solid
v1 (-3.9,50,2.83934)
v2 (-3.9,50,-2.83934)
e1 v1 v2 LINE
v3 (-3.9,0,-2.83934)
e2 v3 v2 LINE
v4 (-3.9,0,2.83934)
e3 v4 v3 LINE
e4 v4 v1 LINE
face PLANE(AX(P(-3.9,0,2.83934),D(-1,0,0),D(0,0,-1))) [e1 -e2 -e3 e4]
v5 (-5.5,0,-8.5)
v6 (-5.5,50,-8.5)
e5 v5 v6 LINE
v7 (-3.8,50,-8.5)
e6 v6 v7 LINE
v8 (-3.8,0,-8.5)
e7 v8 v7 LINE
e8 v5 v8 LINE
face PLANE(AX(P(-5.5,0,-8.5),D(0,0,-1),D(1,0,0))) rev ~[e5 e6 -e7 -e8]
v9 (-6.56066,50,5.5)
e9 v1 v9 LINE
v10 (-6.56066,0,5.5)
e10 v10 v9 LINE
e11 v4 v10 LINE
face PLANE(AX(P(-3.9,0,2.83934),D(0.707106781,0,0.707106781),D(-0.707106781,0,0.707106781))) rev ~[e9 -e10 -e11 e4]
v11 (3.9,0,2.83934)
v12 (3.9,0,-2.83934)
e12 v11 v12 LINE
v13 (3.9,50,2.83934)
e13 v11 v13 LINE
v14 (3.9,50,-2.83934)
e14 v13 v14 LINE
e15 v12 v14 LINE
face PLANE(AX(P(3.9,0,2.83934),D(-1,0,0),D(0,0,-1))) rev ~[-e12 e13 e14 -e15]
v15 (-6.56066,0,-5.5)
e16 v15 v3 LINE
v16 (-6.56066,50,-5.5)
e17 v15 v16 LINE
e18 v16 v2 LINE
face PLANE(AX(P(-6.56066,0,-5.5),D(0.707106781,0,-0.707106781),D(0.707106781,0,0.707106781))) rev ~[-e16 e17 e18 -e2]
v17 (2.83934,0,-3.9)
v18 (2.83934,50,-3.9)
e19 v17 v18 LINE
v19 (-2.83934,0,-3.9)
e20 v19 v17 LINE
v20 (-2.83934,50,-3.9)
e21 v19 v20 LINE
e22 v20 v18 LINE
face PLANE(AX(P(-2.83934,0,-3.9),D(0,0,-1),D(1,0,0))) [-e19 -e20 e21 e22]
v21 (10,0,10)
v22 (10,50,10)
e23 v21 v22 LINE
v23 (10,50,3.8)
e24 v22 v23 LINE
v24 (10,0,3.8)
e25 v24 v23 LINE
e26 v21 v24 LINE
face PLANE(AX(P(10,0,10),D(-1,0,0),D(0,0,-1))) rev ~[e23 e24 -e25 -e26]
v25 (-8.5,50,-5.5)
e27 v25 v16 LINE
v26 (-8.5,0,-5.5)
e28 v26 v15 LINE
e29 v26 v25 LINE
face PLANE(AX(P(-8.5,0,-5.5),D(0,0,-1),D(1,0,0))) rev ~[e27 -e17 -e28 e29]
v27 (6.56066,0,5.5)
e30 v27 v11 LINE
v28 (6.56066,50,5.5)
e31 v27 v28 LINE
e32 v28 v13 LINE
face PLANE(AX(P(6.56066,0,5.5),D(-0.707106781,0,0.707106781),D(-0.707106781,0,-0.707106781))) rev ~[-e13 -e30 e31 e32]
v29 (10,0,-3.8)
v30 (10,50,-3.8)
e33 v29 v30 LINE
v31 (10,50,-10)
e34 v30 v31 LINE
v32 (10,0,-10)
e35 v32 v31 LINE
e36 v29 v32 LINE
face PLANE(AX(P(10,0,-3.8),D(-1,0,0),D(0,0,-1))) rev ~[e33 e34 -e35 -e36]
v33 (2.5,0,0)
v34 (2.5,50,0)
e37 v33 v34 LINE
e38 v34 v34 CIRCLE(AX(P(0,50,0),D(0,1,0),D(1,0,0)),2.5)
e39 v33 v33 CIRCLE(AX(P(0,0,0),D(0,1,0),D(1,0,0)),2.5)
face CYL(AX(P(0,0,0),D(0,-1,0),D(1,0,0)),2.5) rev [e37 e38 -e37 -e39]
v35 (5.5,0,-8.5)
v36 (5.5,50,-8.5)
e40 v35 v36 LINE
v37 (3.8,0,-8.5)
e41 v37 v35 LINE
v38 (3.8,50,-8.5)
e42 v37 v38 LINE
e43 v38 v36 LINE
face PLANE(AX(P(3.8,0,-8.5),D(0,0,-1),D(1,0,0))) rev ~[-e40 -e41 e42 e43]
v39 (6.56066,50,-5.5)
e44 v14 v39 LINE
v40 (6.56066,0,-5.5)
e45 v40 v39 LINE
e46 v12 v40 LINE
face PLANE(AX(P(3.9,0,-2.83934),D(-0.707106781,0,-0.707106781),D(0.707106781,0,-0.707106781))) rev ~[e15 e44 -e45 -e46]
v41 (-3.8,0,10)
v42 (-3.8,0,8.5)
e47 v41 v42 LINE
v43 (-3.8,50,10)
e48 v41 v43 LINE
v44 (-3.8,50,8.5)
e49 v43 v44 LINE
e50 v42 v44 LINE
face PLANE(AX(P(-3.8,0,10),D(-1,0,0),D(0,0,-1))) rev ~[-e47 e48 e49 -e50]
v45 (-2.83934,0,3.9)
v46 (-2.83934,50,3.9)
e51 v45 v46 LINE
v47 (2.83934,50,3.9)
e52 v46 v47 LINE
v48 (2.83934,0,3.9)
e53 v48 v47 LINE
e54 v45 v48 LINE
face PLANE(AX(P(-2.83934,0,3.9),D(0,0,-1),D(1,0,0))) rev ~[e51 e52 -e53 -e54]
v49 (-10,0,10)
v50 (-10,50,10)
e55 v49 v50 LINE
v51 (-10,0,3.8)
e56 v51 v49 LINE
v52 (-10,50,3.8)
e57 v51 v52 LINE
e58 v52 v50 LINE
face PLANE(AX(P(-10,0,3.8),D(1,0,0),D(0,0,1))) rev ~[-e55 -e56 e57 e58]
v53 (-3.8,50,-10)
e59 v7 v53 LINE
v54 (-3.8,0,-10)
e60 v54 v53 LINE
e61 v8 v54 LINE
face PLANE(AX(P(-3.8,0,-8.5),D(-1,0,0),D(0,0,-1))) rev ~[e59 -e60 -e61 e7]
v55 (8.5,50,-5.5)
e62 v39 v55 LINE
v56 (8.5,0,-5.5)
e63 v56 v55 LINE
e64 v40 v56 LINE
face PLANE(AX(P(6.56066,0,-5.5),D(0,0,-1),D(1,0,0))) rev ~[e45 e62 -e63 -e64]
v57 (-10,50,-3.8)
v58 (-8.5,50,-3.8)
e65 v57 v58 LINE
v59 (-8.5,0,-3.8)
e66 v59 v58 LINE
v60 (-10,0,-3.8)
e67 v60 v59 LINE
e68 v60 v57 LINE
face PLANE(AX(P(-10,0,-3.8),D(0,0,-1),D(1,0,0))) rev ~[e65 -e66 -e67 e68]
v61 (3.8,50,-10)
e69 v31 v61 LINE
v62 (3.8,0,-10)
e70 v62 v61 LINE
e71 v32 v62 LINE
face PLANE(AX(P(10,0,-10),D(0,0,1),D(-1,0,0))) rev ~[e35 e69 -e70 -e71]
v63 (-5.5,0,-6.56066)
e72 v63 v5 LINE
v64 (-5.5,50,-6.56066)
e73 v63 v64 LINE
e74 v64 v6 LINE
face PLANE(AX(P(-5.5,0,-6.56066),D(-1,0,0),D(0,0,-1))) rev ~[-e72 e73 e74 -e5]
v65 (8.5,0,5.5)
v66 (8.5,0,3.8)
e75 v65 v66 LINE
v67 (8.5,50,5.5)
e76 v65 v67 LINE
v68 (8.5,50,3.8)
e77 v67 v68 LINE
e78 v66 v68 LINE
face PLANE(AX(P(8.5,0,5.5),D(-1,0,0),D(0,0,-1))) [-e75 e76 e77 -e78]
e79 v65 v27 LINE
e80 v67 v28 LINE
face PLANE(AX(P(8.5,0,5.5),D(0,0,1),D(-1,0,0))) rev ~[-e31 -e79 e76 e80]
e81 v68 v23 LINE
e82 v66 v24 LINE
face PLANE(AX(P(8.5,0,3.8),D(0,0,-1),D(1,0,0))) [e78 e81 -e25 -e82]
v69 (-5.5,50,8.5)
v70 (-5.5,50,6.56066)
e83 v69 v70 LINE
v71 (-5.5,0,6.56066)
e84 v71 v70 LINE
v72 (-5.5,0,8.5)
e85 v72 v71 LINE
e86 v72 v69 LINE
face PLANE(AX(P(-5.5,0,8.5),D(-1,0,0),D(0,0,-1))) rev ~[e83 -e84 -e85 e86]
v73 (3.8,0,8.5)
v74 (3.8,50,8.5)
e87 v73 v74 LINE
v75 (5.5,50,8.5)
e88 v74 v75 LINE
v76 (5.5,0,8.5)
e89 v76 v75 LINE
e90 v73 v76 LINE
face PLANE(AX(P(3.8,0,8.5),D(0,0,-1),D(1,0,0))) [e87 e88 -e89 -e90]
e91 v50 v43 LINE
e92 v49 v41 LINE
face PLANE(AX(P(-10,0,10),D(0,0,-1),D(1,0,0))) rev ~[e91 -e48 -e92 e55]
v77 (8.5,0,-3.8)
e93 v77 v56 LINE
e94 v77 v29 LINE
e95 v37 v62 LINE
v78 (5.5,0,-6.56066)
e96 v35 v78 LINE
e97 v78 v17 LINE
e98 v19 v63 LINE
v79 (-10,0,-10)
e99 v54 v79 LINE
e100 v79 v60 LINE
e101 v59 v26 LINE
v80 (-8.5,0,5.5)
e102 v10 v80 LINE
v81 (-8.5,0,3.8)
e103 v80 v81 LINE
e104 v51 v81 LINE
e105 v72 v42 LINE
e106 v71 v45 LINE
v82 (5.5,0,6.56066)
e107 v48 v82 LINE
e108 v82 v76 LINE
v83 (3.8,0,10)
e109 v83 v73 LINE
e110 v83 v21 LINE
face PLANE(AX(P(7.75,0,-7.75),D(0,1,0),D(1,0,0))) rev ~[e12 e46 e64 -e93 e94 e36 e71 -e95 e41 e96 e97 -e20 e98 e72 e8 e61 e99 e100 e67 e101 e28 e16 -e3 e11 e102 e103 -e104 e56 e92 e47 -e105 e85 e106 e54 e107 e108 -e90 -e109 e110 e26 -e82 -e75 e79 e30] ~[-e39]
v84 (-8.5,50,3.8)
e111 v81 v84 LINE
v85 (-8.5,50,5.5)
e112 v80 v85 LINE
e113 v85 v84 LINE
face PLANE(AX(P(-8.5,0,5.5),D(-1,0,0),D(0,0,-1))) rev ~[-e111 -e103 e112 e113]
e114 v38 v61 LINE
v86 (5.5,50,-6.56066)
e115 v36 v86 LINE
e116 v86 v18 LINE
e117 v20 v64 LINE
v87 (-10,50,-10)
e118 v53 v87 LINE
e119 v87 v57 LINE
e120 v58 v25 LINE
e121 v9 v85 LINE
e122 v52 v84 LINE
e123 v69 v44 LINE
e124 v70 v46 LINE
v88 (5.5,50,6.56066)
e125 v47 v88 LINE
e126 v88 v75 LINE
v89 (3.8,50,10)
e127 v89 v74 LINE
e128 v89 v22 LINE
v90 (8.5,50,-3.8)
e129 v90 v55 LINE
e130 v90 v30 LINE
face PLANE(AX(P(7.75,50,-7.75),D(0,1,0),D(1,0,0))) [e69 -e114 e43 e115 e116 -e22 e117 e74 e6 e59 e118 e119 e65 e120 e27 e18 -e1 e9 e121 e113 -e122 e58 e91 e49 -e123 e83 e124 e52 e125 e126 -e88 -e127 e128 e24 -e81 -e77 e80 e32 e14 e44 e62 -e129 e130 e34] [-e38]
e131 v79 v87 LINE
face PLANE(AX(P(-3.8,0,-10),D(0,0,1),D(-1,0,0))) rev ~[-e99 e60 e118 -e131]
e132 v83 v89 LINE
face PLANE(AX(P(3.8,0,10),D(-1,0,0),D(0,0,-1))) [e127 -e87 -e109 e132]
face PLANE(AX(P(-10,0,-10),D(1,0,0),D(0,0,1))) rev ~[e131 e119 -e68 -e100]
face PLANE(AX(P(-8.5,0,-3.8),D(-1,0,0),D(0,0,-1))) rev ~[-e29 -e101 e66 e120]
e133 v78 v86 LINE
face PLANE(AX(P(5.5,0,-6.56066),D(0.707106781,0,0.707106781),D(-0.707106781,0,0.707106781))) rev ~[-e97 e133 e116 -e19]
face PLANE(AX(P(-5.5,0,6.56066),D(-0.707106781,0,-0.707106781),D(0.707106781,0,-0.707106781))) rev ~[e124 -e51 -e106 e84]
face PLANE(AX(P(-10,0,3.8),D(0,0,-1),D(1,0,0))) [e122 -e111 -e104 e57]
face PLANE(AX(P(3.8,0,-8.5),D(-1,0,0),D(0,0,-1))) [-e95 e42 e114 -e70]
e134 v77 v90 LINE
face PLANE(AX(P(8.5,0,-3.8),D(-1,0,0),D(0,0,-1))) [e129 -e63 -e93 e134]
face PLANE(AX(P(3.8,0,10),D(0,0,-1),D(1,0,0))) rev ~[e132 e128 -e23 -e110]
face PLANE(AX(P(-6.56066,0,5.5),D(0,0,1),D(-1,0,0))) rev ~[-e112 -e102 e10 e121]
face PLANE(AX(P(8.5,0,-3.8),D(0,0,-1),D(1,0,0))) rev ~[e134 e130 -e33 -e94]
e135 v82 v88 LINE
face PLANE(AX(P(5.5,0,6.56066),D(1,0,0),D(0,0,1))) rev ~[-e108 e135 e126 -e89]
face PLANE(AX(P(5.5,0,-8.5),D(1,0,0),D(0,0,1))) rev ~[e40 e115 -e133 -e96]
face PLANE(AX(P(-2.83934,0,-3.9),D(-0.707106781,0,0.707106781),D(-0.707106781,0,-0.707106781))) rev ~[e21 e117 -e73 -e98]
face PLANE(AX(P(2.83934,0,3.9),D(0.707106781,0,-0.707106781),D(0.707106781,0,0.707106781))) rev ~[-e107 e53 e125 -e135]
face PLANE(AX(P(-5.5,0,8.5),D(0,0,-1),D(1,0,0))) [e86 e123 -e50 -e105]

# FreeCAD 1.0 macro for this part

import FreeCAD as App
import Part
import Sketcher

V = App.Vector
Q = App.Units.Quantity

doc = App.newDocument("Part")
body = doc.addObject("PartDesign::Body", "Body")

sketch1 = body.newObject("Sketcher::SketchObject", "Sketch")
sketch1.AttachmentSupport = (doc.getObject("XZ_Plane"), [""])
sketch1.MapMode = "FlatFace"
sketch1.addGeometry(Part.LineSegment(V(6.6, -5.5, 0), V(8.5, -5.5, 0)), False)
sketch1.addGeometry(Part.LineSegment(V(8.5, -5.5, 0), V(8.5, -3.8, 0)), False)
sketch1.addGeometry(Part.LineSegment(V(8.5, -3.8, 0), V(10, -3.8, 0)), False)
sketch1.addGeometry(Part.LineSegment(V(10, -3.8, 0), V(10, -10, 0)), False)
sketch1.addGeometry(Part.LineSegment(V(10, -10, 0), V(3.8, -10, 0)), False)
sketch1.addGeometry(Part.LineSegment(V(3.8, -10, 0), V(3.8, -8.5, 0)), False)
sketch1.addGeometry(Part.LineSegment(V(3.8, -8.5, 0), V(5.5, -8.5, 0)), False)
sketch1.addGeometry(Part.LineSegment(V(5.5, -8.5, 0), V(5.5, -6.6, 0)), False)
sketch1.addGeometry(Part.LineSegment(V(5.5, -6.6, 0), V(2.8, -3.9, 0)), False)
sketch1.addGeometry(Part.LineSegment(V(2.8, -3.9, 0), V(-2.8, -3.9, 0)), False)
sketch1.addGeometry(Part.LineSegment(V(-2.8, -3.9, 0), V(-5.5, -6.6, 0)), False)
sketch1.addGeometry(Part.LineSegment(V(-5.5, -6.6, 0), V(-5.5, -8.5, 0)), False)
sketch1.addGeometry(Part.LineSegment(V(-5.5, -8.5, 0), V(-3.8, -8.5, 0)), False)
sketch1.addGeometry(Part.LineSegment(V(-3.8, -8.5, 0), V(-3.8, -10, 0)), False)
sketch1.addGeometry(Part.LineSegment(V(-3.8, -10, 0), V(-10, -10, 0)), False)
sketch1.addGeometry(Part.LineSegment(V(-10, -10, 0), V(-10, -3.8, 0)), False)
sketch1.addGeometry(Part.LineSegment(V(-10, -3.8, 0), V(-8.5, -3.8, 0)), False)
sketch1.addGeometry(Part.LineSegment(V(-8.5, -3.8, 0), V(-8.5, -5.5, 0)), False)
sketch1.addGeometry(Part.LineSegment(V(-8.5, -5.5, 0), V(-6.6, -5.5, 0)), False)
sketch1.addGeometry(Part.LineSegment(V(-6.6, -5.5, 0), V(-3.9, -2.8, 0)), False)
sketch1.addGeometry(Part.LineSegment(V(-3.9, -2.8, 0), V(-3.9, 2.8, 0)), False)
sketch1.addGeometry(Part.LineSegment(V(-3.9, 2.8, 0), V(-6.6, 5.5, 0)), False)
sketch1.addGeometry(Part.LineSegment(V(-6.6, 5.5, 0), V(-8.5, 5.5, 0)), False)
sketch1.addGeometry(Part.LineSegment(V(-8.5, 5.5, 0), V(-8.5, 3.8, 0)), False)
sketch1.addGeometry(Part.LineSegment(V(-8.5, 3.8, 0), V(-10, 3.8, 0)), False)
sketch1.addGeometry(Part.LineSegment(V(-10, 3.8, 0), V(-10, 10, 0)), False)
sketch1.addGeometry(Part.LineSegment(V(-10, 10, 0), V(-3.8, 10, 0)), False)
sketch1.addGeometry(Part.LineSegment(V(-3.8, 10, 0), V(-3.8, 8.5, 0)), False)
sketch1.addGeometry(Part.LineSegment(V(-3.8, 8.5, 0), V(-5.5, 8.5, 0)), False)
sketch1.addGeometry(Part.LineSegment(V(-5.5, 8.5, 0), V(-5.5, 6.6, 0)), False)
sketch1.addGeometry(Part.LineSegment(V(-5.5, 6.6, 0), V(-2.8, 3.9, 0)), False)
sketch1.addGeometry(Part.LineSegment(V(-2.8, 3.9, 0), V(2.8, 3.9, 0)), False)
sketch1.addGeometry(Part.LineSegment(V(2.8, 3.9, 0), V(5.5, 6.6, 0)), False)
sketch1.addGeometry(Part.LineSegment(V(5.5, 6.6, 0), V(5.5, 8.5, 0)), False)
sketch1.addGeometry(Part.LineSegment(V(5.5, 8.5, 0), V(3.8, 8.5, 0)), False)
sketch1.addGeometry(Part.LineSegment(V(3.8, 8.5, 0), V(3.8, 10, 0)), False)
sketch1.addGeometry(Part.LineSegment(V(3.8, 10, 0), V(10, 10, 0)), False)
sketch1.addGeometry(Part.LineSegment(V(10, 10, 0), V(10, 3.8, 0)), False)
sketch1.addGeometry(Part.LineSegment(V(10, 3.8, 0), V(8.5, 3.8, 0)), False)
sketch1.addGeometry(Part.LineSegment(V(8.5, 3.8, 0), V(8.5, 5.5, 0)), False)
sketch1.addGeometry(Part.LineSegment(V(8.5, 5.5, 0), V(6.6, 5.5, 0)), False)
sketch1.addGeometry(Part.LineSegment(V(6.6, 5.5, 0), V(3.9, 2.8, 0)), False)
sketch1.addGeometry(Part.LineSegment(V(3.9, 2.8, 0), V(3.9, -2.8, 0)), False)
sketch1.addGeometry(Part.LineSegment(V(3.9, -2.8, 0), V(6.6, -5.5, 0)), False)
sketch1.addGeometry(Part.Circle(V(0, 0, 0), V(0, 0, 1), 2.5), False)
sketch1.addConstraint(Sketcher.Constraint("Coincident", 0, 2, 1, 1))
sketch1.addConstraint(Sketcher.Constraint("Coincident", 1, 2, 2, 1))
sketch1.addConstraint(Sketcher.Constraint("Coincident", 2, 2, 3, 1))
sketch1.addConstraint(Sketcher.Constraint("Coincident", 3, 2, 4, 1))
sketch1.addConstraint(Sketcher.Constraint("Coincident", 4, 2, 5, 1))
sketch1.addConstraint(Sketcher.Constraint("Coincident", 5, 2, 6, 1))
sketch1.addConstraint(Sketcher.Constraint("Coincident", 6, 2, 7, 1))
sketch1.addConstraint(Sketcher.Constraint("Coincident", 7, 2, 8, 1))
sketch1.addConstraint(Sketcher.Constraint("Coincident", 8, 2, 9, 1))
sketch1.addConstraint(Sketcher.Constraint("Coincident", 9, 2, 10, 1))
sketch1.addConstraint(Sketcher.Constraint("Coincident", 10, 2, 11, 1))
sketch1.addConstraint(Sketcher.Constraint("Coincident", 11, 2, 12, 1))
sketch1.addConstraint(Sketcher.Constraint("Coincident", 12, 2, 13, 1))
sketch1.addConstraint(Sketcher.Constraint("Coincident", 13, 2, 14, 1))
sketch1.addConstraint(Sketcher.Constraint("Coincident", 14, 2, 15, 1))
sketch1.addConstraint(Sketcher.Constraint("Coincident", 15, 2, 16, 1))
sketch1.addConstraint(Sketcher.Constraint("Coincident", 16, 2, 17, 1))
sketch1.addConstraint(Sketcher.Constraint("Coincident", 17, 2, 18, 1))
sketch1.addConstraint(Sketcher.Constraint("Coincident", 18, 2, 19, 1))
sketch1.addConstraint(Sketcher.Constraint("Coincident", 19, 2, 20, 1))
sketch1.addConstraint(Sketcher.Constraint("Coincident", 20, 2, 21, 1))
sketch1.addConstraint(Sketcher.Constraint("Coincident", 21, 2, 22, 1))
sketch1.addConstraint(Sketcher.Constraint("Coincident", 22, 2, 23, 1))
sketch1.addConstraint(Sketcher.Constraint("Coincident", 23, 2, 24, 1))
sketch1.addConstraint(Sketcher.Constraint("Coincident", 24, 2, 25, 1))
sketch1.addConstraint(Sketcher.Constraint("Coincident", 25, 2, 26, 1))
sketch1.addConstraint(Sketcher.Constraint("Coincident", 26, 2, 27, 1))
sketch1.addConstraint(Sketcher.Constraint("Coincident", 27, 2, 28, 1))
sketch1.addConstraint(Sketcher.Constraint("Coincident", 28, 2, 29, 1))
sketch1.addConstraint(Sketcher.Constraint("Coincident", 29, 2, 30, 1))
sketch1.addConstraint(Sketcher.Constraint("Coincident", 30, 2, 31, 1))
sketch1.addConstraint(Sketcher.Constraint("Coincident", 31, 2, 32, 1))
sketch1.addConstraint(Sketcher.Constraint("Coincident", 32, 2, 33, 1))
sketch1.addConstraint(Sketcher.Constraint("Coincident", 33, 2, 34, 1))
sketch1.addConstraint(Sketcher.Constraint("Coincident", 34, 2, 35, 1))
sketch1.addConstraint(Sketcher.Constraint("Coincident", 35, 2, 36, 1))
sketch1.addConstraint(Sketcher.Constraint("Coincident", 36, 2, 37, 1))
sketch1.addConstraint(Sketcher.Constraint("Coincident", 37, 2, 38, 1))
sketch1.addConstraint(Sketcher.Constraint("Coincident", 38, 2, 39, 1))
sketch1.addConstraint(Sketcher.Constraint("Coincident", 39, 2, 40, 1))
sketch1.addConstraint(Sketcher.Constraint("Coincident", 40, 2, 41, 1))
sketch1.addConstraint(Sketcher.Constraint("Coincident", 41, 2, 42, 1))
sketch1.addConstraint(Sketcher.Constraint("Coincident", 42, 2, 43, 1))
sketch1.addConstraint(Sketcher.Constraint("Coincident", 43, 2, 0, 1))
sketch1.addConstraint(Sketcher.Constraint("Horizontal", 0))
sketch1.addConstraint(Sketcher.Constraint("Vertical", 1))
sketch1.addConstraint(Sketcher.Constraint("Horizontal", 2))
sketch1.addConstraint(Sketcher.Constraint("Vertical", 3))
sketch1.addConstraint(Sketcher.Constraint("Horizontal", 4))
sketch1.addConstraint(Sketcher.Constraint("Vertical", 5))
sketch1.addConstraint(Sketcher.Constraint("Horizontal", 6))
sketch1.addConstraint(Sketcher.Constraint("Vertical", 7))
sketch1.addConstraint(Sketcher.Constraint("Horizontal", 9))
sketch1.addConstraint(Sketcher.Constraint("Vertical", 11))
sketch1.addConstraint(Sketcher.Constraint("Horizontal", 12))
sketch1.addConstraint(Sketcher.Constraint("Vertical", 13))
sketch1.addConstraint(Sketcher.Constraint("Horizontal", 14))
sketch1.addConstraint(Sketcher.Constraint("Vertical", 15))
sketch1.addConstraint(Sketcher.Constraint("Horizontal", 16))
sketch1.addConstraint(Sketcher.Constraint("Vertical", 17))
sketch1.addConstraint(Sketcher.Constraint("Horizontal", 18))
sketch1.addConstraint(Sketcher.Constraint("Vertical", 20))
sketch1.addConstraint(Sketcher.Constraint("Horizontal", 22))
sketch1.addConstraint(Sketcher.Constraint("Vertical", 23))
sketch1.addConstraint(Sketcher.Constraint("Horizontal", 24))
sketch1.addConstraint(Sketcher.Constraint("Vertical", 25))
sketch1.addConstraint(Sketcher.Constraint("Horizontal", 26))
sketch1.addConstraint(Sketcher.Constraint("Vertical", 27))
sketch1.addConstraint(Sketcher.Constraint("Horizontal", 28))
sketch1.addConstraint(Sketcher.Constraint("Vertical", 29))
sketch1.addConstraint(Sketcher.Constraint("Horizontal", 31))
sketch1.addConstraint(Sketcher.Constraint("Vertical", 33))
sketch1.addConstraint(Sketcher.Constraint("Horizontal", 34))
sketch1.addConstraint(Sketcher.Constraint("Vertical", 35))
sketch1.addConstraint(Sketcher.Constraint("Horizontal", 36))
sketch1.addConstraint(Sketcher.Constraint("Vertical", 37))
sketch1.addConstraint(Sketcher.Constraint("Horizontal", 38))
sketch1.addConstraint(Sketcher.Constraint("Vertical", 39))
sketch1.addConstraint(Sketcher.Constraint("Horizontal", 40))
sketch1.addConstraint(Sketcher.Constraint("Vertical", 42))
sketch1.addConstraint(Sketcher.Constraint("Coincident", 44, 3, -1, 1))
sketch1.addConstraint(Sketcher.Constraint("Symmetric", 0, 2, 22, 2, -1, 1))
sketch1.addConstraint(Sketcher.Constraint("Symmetric", 2, 2, 24, 2, -1, 1))
sketch1.addConstraint(Sketcher.Constraint("Symmetric", 4, 2, 26, 2, -1, 1))
sketch1.addConstraint(Sketcher.Constraint("Symmetric", 6, 2, 28, 2, -1, 1))
sketch1.addConstraint(Sketcher.Constraint("Symmetric", 8, 2, 30, 2, -1, 1))
sketch1.addConstraint(Sketcher.Constraint("Symmetric", 10, 2, 32, 2, -1, 1))
sketch1.addConstraint(Sketcher.Constraint("Symmetric", 12, 2, 34, 2, -1, 1))
sketch1.addConstraint(Sketcher.Constraint("Symmetric", 14, 2, 36, 2, -1, 1))
sketch1.addConstraint(Sketcher.Constraint("Symmetric", 16, 2, 38, 2, -1, 1))
sketch1.addConstraint(Sketcher.Constraint("Symmetric", 18, 2, 40, 2, -1, 1))
sketch1.addConstraint(Sketcher.Constraint("Symmetric", 19, 2, 41, 2, -1, 1))
sketch1.addConstraint(Sketcher.Constraint("Symmetric", 7, 2, 10, 2, -2))
sketch1.addConstraint(Sketcher.Constraint("Symmetric", 5, 2, 12, 2, -2))
sketch1.addConstraint(Sketcher.Constraint("Symmetric", 3, 2, 14, 2, -2))
sketch1.addConstraint(Sketcher.Constraint("Symmetric", 1, 2, 16, 2, -2))
sketch1.addConstraint(Sketcher.Constraint("Symmetric", 21, 2, 40, 2, -2))
sketch1.addConstraint(Sketcher.Constraint("Perpendicular", 8, 10))
sketch1.addConstraint(Sketcher.Constraint("Parallel", 10, 19))
sketch1.addConstraint(Sketcher.Constraint("Perpendicular", 19, 21))
sketch1.addConstraint(Sketcher.Constraint("Parallel", 21, 30))
sketch1.addConstraint(Sketcher.Constraint("Perpendicular", 30, 32))
sketch1.addConstraint(Sketcher.Constraint("Perpendicular", 41, 43))
sketch1.addConstraint(Sketcher.Constraint("Horizontal", 20, 2, 41, 2))
sketch1.addConstraint(Sketcher.Constraint("Horizontal", 19, 2, 42, 2))
sketch1.addConstraint(Sketcher.Constraint("Equal", 34, 1))
sketch1.addConstraint(Sketcher.Constraint("Equal", 36, 3))
sketch1.addConstraint(Sketcher.Constraint("Equal", 38, 5))
sketch1.addConstraint(Sketcher.Constraint("Equal", 40, 7))
sketch1.addConstraint(Sketcher.Constraint("Equal", 31, 20))
sketch1.addConstraint(Sketcher.Constraint("Equal", 10, 19))
sketch1.addConstraint(Sketcher.Constraint("Diameter", 44, Q("5 mm")))
sketch1.addConstraint(Sketcher.Constraint("DistanceX", 2, 1, 2, 2, Q("1.5 mm")))
sketch1.addConstraint(Sketcher.Constraint("DistanceX", 4, 2, 4, 1, Q("6.2 mm")))
sketch1.addConstraint(Sketcher.Constraint("DistanceX", 6, 1, 6, 2, Q("1.7 mm")))
sketch1.addConstraint(Sketcher.Constraint("DistanceX", -1, 1, 2, 2, Q("10 mm")))
sketch1.addConstraint(Sketcher.Constraint("DistanceY", 8, 2, -1, 1, Q("3.9 mm")))
sketch1.addConstraint(Sketcher.Constraint("DistanceX", 0, 1, 0, 2, Q("1.93934 mm")))
pad1 = body.newObject("PartDesign::Pad", "Pad")
pad1.Profile = sketch1
pad1.Length = 50
pad1.Reversed = True

doc.recompute()
